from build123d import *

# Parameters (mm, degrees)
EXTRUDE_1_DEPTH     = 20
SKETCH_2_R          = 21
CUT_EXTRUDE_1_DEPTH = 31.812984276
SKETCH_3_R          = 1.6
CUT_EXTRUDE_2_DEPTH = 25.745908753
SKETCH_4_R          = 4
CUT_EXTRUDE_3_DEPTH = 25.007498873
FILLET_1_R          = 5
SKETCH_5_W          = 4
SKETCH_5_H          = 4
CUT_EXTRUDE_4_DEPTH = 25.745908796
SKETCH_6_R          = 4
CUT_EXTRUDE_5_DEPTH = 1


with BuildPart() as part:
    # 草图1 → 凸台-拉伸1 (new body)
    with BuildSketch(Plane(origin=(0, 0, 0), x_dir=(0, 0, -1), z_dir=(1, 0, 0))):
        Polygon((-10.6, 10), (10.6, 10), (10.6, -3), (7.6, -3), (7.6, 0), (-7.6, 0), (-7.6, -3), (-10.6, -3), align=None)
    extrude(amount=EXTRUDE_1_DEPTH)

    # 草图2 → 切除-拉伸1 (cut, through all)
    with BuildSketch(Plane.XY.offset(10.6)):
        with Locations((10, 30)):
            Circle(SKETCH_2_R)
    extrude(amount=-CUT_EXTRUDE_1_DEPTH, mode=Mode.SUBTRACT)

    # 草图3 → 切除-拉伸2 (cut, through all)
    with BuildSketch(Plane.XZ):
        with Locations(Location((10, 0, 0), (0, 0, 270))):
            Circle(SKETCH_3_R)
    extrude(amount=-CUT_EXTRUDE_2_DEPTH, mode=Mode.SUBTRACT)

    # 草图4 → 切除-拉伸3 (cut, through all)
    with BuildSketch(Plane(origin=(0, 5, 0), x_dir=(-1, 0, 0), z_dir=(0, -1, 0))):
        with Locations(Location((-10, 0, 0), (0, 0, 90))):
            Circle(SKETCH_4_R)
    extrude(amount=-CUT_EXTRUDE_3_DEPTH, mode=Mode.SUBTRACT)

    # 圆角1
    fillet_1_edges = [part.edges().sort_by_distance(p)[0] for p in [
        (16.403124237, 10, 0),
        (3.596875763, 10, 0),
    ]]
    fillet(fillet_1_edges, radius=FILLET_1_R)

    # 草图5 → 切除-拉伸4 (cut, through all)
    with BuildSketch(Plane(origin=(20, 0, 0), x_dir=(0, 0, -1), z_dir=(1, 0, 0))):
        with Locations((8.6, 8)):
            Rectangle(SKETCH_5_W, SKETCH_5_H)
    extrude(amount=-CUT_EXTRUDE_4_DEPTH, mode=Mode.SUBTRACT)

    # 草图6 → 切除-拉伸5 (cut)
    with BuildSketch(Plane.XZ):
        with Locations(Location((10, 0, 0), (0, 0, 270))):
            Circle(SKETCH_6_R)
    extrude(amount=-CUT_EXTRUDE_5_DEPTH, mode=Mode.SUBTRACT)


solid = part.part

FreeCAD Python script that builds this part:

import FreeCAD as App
import Part
import Sketcher

V = App.Vector
Q = App.Units.Quantity


def edges_at(feature, points):
    """Names of the edges that pass closest to the given points."""
    edges = feature.Shape.Edges
    near = lambda p: min(range(len(edges)), key=lambda i: edges[i].distToShape(Part.Vertex(*p))[0])
    return sorted({f"Edge{near(p) + 1}" for p in points})

doc = App.newDocument("Part")
body = doc.addObject("PartDesign::Body", "Body")

sketch1 = body.newObject("Sketcher::SketchObject", "Sketch")
sketch1.AttachmentSupport = (doc.getObject("YZ_Plane"), [""])
sketch1.MapMode = "FlatFace"
sketch1.addGeometry([
    Part.LineSegment(V(10, -10.6, 0), V(10, 10.6, 0)),
    Part.LineSegment(V(10, 10.6, 0), V(-3, 10.6, 0)),
    Part.LineSegment(V(-3, 10.6, 0), V(-3, 7.6, 0)),
    Part.LineSegment(V(-3, 7.6, 0), V(0, 7.6, 0)),
    Part.LineSegment(V(0, 7.6, 0), V(0, -7.6, 0)),
    Part.LineSegment(V(0, -7.6, 0), V(-3, -7.6, 0)),
    Part.LineSegment(V(-3, -7.6, 0), V(-3, -10.6, 0)),
    Part.LineSegment(V(-3, -10.6, 0), V(10, -10.6, 0)),
], False)
sketch1.addConstraint([
    Sketcher.Constraint("Coincident", 0, 2, 1, 1),
    Sketcher.Constraint("Coincident", 1, 2, 2, 1),
    Sketcher.Constraint("Coincident", 2, 2, 3, 1),
    Sketcher.Constraint("Coincident", 3, 2, 4, 1),
    Sketcher.Constraint("Coincident", 4, 2, 5, 1),
    Sketcher.Constraint("Coincident", 5, 2, 6, 1),
    Sketcher.Constraint("Coincident", 6, 2, 7, 1),
    Sketcher.Constraint("Coincident", 7, 2, 0, 1),
    Sketcher.Constraint("Vertical", 0),
    Sketcher.Constraint("Horizontal", 1),
    Sketcher.Constraint("Vertical", 2),
    Sketcher.Constraint("Horizontal", 3),
    Sketcher.Constraint("Vertical", 4),
    Sketcher.Constraint("Horizontal", 5),
    Sketcher.Constraint("Vertical", 6),
    Sketcher.Constraint("Horizontal", 7),
    Sketcher.Constraint("Symmetric", 3, 2, 4, 2, -1, 1),
    Sketcher.Constraint("Symmetric", 1, 2, 6, 2, -1),
    Sketcher.Constraint("Equal", 5, 2),
    Sketcher.Constraint("DistanceX", 1, 2, 1, 1, Q("13 mm")),
    Sketcher.Constraint("DistanceX", 3, 1, 3, 2, Q("3 mm")),
    Sketcher.Constraint("DistanceY", 0, 1, 0, 2, Q("21.2 mm")),
])
pad1 = body.newObject("PartDesign::Pad", "Pad")
pad1.Profile = sketch1
pad1.Length = 20

sketch2 = body.newObject("Sketcher::SketchObject", "Sketch001")
sketch2.AttachmentSupport = (doc.getObject("XY_Plane"), [""])
sketch2.MapMode = "FlatFace"
sketch2.AttachmentOffset = App.Placement(V(0, 0, 10.6), App.Rotation())
sketch2.addGeometry(Part.Circle(V(10, 30, 0), V(0, 0, 1), 21), False)
sketch2.addConstraint([
    Sketcher.Constraint("Diameter", 0, Q("42 mm")),
    Sketcher.Constraint("DistanceX", -1, 1, 0, 3, Q("10 mm")),
    Sketcher.Constraint("DistanceY", -1, 1, 0, 3, Q("30 mm")),
])
pocket1 = body.newObject("PartDesign::Pocket", "Pocket")
pocket1.Profile = sketch2
pocket1.Type = "ThroughAll"

sketch3 = body.newObject("Sketcher::SketchObject", "Sketch002")
sketch3.AttachmentSupport = (doc.getObject("XZ_Plane"), [""])
sketch3.MapMode = "FlatFace"
sketch3.addGeometry(Part.Circle(V(10, 0, 0), V(0, 0, 1), 1.6), False)
sketch3.addConstraint([
    Sketcher.Constraint("PointOnObject", 0, 3, -1),
    Sketcher.Constraint("Diameter", 0, Q("3.2 mm")),
    Sketcher.Constraint("DistanceX", -1, 1, 0, 3, Q("10 mm")),
])
pocket2 = body.newObject("PartDesign::Pocket", "Pocket001")
pocket2.Profile = sketch3
pocket2.Type = "ThroughAll"

sketch4 = body.newObject("Sketcher::SketchObject", "Sketch003")
sketch4.AttachmentSupport = (doc.getObject("XZ_Plane"), [""])
sketch4.MapMode = "FlatFace"
sketch4.AttachmentOffset = App.Placement(V(0, 0, -5), App.Rotation())
sketch4.addGeometry(Part.Circle(V(10, 0, 0), V(0, 0, 1), 4), False)
sketch4.addConstraint([
    Sketcher.Constraint("PointOnObject", 0, 3, -1),
    Sketcher.Constraint("Diameter", 0, Q("8 mm")),
    Sketcher.Constraint("DistanceX", -1, 1, 0, 3, Q("10 mm")),
])
pocket3 = body.newObject("PartDesign::Pocket", "Pocket002")
pocket3.Profile = sketch4
pocket3.Type = "ThroughAll"
doc.recompute()

fillet = body.newObject("PartDesign::Fillet", "Fillet")
fillet.Base = (pocket3, edges_at(pocket3, [(16.403, 10, 0), (3.597, 10, 0)]))
fillet.Radius = 5

sketch5 = body.newObject("Sketcher::SketchObject", "Sketch004")
sketch5.AttachmentSupport = (doc.getObject("YZ_Plane"), [""])
sketch5.MapMode = "FlatFace"
sketch5.AttachmentOffset = App.Placement(V(0, 0, 20), App.Rotation())
sketch5.addGeometry([
    Part.LineSegment(V(10, -6.6, 0), V(6, -6.6, 0)),
    Part.LineSegment(V(6, -6.6, 0), V(6, -10.6, 0)),
    Part.LineSegment(V(6, -10.6, 0), V(10, -10.6, 0)),
    Part.LineSegment(V(10, -10.6, 0), V(10, -6.6, 0)),
], False)
sketch5.addConstraint([
    Sketcher.Constraint("Coincident", 0, 2, 1, 1),
    Sketcher.Constraint("Coincident", 1, 2, 2, 1),
    Sketcher.Constraint("Coincident", 2, 2, 3, 1),
    Sketcher.Constraint("Coincident", 3, 2, 0, 1),
    Sketcher.Constraint("Horizontal", 0),
    Sketcher.Constraint("Vertical", 1),
    Sketcher.Constraint("Horizontal", 2),
    Sketcher.Constraint("Vertical", 3),
    Sketcher.Constraint("Equal", 2, 1),
    Sketcher.Constraint("DistanceX", 0, 2, 0, 1, Q("4 mm")),
    Sketcher.Constraint("DistanceX", -1, 1, 0, 2, Q("6 mm")),
    Sketcher.Constraint("DistanceY", 0, 2, -1, 1, Q("6.6 mm")),
])
pocket4 = body.newObject("PartDesign::Pocket", "Pocket003")
pocket4.Profile = sketch5
pocket4.Type = "ThroughAll"

sketch6 = body.newObject("Sketcher::SketchObject", "Sketch005")
sketch6.AttachmentSupport = (doc.getObject("XZ_Plane"), [""])
sketch6.MapMode = "FlatFace"
sketch6.addGeometry(Part.Circle(V(10, 0, 0), V(0, 0, 1), 4), False)
sketch6.addConstraint([
    Sketcher.Constraint("PointOnObject", 0, 3, -1),
    Sketcher.Constraint("Diameter", 0, Q("8 mm")),
    Sketcher.Constraint("DistanceX", -1, 1, 0, 3, Q("10 mm")),
])
pocket5 = body.newObject("PartDesign::Pocket", "Pocket004")
pocket5.Profile = sketch6
pocket5.Length = 1

doc.recompute()
